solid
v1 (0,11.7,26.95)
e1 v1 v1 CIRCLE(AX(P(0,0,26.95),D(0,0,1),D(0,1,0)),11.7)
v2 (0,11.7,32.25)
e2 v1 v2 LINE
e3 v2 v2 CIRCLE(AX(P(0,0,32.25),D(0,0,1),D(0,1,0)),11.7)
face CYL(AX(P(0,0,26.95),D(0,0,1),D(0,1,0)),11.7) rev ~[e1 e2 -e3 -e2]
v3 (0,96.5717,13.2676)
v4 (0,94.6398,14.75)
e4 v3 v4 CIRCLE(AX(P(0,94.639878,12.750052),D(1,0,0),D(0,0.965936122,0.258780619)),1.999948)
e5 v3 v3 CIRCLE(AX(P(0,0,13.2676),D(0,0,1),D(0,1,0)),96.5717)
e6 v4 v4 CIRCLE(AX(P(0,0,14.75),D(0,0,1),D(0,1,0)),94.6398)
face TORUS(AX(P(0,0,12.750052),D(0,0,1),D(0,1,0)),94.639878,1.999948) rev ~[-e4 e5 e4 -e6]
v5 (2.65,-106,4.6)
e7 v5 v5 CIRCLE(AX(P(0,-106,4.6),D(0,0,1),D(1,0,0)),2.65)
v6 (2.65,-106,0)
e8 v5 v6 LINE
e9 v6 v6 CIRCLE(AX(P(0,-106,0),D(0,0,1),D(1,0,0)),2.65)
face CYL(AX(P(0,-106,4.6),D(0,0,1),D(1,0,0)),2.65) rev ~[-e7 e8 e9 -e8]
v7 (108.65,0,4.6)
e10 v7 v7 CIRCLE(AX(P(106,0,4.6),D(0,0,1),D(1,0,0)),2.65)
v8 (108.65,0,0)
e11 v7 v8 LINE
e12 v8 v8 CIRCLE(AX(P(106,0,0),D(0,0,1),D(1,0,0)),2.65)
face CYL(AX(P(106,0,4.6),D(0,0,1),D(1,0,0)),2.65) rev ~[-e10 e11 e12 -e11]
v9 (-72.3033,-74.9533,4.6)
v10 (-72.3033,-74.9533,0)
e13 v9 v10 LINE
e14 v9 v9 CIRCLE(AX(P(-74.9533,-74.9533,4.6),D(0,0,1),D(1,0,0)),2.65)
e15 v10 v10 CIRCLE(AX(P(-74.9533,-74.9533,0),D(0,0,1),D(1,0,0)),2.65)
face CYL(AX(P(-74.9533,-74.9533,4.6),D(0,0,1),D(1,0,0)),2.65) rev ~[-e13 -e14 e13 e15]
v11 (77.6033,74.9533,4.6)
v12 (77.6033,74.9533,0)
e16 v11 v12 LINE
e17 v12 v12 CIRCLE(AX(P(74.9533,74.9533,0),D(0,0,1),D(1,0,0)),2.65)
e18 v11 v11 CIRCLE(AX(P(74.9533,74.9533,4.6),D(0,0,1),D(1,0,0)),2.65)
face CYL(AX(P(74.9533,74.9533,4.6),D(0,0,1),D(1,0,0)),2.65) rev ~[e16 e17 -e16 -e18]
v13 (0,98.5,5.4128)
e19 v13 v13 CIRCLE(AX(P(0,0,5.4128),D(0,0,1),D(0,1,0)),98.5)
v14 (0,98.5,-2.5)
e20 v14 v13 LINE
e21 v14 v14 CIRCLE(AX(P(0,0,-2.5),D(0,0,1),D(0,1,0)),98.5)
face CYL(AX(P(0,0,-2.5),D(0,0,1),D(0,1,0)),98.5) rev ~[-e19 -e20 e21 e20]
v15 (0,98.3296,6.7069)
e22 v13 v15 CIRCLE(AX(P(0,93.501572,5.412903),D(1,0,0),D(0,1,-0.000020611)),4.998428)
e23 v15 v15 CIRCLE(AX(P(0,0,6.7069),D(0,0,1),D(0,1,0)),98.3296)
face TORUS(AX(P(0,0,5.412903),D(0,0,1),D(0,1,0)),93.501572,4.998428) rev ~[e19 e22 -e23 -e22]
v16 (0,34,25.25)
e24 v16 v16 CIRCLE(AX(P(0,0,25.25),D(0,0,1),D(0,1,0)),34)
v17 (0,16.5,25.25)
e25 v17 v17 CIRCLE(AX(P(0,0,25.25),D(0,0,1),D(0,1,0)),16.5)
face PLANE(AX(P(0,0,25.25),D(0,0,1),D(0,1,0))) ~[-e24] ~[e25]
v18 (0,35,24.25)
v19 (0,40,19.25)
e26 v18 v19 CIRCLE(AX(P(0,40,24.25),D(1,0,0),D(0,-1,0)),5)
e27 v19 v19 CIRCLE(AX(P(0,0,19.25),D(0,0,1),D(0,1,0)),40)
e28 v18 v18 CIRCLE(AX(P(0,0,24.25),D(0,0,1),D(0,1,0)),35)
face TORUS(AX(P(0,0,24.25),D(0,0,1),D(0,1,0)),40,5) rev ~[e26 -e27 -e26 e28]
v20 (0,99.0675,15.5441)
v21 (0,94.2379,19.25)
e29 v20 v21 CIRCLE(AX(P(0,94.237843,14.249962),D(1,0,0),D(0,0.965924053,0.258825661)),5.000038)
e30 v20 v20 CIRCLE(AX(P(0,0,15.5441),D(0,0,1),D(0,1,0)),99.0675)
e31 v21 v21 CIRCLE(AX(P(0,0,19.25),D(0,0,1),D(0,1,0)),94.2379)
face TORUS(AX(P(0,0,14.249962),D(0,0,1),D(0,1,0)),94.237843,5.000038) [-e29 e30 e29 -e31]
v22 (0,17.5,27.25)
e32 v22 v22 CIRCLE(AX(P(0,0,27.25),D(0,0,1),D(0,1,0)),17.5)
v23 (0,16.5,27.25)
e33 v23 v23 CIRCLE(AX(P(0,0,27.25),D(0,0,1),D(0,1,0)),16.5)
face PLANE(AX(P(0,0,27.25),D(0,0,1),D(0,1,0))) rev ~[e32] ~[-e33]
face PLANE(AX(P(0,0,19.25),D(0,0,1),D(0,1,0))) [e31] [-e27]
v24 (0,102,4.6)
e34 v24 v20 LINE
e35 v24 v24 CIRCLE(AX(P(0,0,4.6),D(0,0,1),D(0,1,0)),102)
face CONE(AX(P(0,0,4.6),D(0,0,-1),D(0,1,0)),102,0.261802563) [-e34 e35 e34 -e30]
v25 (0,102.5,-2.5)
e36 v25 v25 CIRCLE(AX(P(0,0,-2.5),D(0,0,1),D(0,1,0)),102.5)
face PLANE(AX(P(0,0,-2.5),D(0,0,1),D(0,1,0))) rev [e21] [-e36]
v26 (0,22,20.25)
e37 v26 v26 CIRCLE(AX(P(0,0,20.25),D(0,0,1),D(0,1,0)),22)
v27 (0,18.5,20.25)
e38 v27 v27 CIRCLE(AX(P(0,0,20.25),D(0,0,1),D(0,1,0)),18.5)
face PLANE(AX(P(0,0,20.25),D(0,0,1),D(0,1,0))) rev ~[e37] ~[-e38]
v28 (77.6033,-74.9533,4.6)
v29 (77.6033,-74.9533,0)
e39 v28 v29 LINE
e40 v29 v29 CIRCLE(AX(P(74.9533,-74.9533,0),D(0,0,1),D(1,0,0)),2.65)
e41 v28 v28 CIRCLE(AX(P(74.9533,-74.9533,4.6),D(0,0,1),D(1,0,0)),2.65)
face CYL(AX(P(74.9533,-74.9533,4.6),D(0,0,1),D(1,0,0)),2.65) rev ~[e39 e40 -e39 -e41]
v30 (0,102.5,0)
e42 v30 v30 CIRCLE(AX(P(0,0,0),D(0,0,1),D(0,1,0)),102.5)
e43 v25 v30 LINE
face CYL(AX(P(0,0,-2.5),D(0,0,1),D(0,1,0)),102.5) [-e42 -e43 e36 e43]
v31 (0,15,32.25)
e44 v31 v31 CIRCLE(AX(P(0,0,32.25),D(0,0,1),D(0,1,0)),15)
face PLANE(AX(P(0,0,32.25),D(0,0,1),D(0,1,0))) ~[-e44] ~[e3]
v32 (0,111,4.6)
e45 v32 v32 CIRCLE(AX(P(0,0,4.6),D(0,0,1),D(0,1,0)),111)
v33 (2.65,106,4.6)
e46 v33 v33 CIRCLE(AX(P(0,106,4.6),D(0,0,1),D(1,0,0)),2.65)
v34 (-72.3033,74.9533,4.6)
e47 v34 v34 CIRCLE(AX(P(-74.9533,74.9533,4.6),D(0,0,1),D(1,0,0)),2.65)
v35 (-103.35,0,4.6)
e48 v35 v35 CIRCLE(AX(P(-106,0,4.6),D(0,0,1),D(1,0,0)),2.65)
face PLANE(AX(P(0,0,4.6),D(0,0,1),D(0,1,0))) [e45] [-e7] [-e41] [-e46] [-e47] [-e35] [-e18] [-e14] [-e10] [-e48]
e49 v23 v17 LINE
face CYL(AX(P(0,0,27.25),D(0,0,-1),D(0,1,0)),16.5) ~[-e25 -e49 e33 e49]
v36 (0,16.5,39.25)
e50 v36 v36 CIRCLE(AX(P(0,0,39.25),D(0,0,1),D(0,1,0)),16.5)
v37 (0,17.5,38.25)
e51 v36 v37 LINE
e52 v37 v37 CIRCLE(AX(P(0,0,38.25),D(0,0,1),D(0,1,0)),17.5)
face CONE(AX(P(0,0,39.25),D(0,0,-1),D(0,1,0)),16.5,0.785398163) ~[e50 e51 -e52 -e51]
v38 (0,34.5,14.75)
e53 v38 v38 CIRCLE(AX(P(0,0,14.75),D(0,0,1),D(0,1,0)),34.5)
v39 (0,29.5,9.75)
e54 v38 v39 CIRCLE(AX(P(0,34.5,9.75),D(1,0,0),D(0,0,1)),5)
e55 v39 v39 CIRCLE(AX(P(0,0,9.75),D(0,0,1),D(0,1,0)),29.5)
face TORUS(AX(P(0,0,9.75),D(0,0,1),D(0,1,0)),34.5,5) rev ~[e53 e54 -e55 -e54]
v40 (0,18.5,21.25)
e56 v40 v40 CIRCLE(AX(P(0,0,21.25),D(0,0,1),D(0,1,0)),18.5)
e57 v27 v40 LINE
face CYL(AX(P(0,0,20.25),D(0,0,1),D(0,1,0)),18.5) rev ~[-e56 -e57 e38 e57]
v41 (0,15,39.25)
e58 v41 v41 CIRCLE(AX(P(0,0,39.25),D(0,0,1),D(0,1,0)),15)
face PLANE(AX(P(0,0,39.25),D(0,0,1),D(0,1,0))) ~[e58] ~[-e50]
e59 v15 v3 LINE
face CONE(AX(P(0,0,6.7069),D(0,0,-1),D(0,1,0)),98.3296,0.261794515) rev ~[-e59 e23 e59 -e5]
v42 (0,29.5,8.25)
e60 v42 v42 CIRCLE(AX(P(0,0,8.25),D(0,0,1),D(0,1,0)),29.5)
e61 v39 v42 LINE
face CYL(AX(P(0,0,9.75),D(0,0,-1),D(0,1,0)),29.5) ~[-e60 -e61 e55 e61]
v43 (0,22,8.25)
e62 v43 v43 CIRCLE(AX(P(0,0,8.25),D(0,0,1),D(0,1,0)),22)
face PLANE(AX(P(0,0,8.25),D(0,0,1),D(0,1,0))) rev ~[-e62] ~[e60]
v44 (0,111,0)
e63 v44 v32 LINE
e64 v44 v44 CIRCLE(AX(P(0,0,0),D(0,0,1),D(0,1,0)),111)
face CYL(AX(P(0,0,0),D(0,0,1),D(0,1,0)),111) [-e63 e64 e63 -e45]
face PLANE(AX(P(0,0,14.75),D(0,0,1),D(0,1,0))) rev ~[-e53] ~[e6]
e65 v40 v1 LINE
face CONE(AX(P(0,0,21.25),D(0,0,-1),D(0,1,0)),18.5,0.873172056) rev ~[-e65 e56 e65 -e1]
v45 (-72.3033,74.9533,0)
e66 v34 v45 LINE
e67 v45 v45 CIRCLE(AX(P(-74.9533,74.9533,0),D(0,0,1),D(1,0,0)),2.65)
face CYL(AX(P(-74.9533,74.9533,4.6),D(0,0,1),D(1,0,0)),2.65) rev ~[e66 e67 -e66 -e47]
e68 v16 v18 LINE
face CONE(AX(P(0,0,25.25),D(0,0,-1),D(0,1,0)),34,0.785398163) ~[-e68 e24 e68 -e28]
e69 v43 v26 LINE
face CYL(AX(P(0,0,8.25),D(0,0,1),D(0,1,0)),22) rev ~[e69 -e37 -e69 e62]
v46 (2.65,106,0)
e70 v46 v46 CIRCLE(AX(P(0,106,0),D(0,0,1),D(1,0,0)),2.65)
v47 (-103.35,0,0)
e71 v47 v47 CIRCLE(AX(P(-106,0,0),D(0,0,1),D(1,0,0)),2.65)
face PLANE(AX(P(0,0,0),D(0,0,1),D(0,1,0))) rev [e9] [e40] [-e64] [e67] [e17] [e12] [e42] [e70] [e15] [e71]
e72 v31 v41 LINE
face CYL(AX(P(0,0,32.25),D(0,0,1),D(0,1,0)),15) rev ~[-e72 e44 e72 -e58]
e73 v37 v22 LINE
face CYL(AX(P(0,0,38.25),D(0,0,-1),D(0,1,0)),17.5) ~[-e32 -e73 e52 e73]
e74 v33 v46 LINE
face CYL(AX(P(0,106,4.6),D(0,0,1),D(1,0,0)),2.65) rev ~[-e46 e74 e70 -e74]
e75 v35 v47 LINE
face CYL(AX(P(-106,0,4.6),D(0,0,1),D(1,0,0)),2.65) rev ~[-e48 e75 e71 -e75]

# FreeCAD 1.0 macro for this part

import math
import FreeCAD as App
import Part
import Sketcher
Q = App.Units.Quantity

doc = App.newDocument("Part")
body = doc.addObject("PartDesign::Body", "Body")

# Sketch on YZ plane
sketch1 = body.newObject("Sketcher::SketchObject", "Sketch")
sketch1.AttachmentSupport = (doc.getObject("YZ_Plane"), [""])
sketch1.MapMode = "FlatFace"
sketch1.addGeometry([
    Part.LineSegment(App.Vector(98.5, 5.4, 0), App.Vector(98.5, -2.5, 0)),  # 0
    Part.LineSegment(App.Vector(98.5, -2.5, 0), App.Vector(102.5, -2.5, 0)),  # 1
    Part.LineSegment(App.Vector(102.5, -2.5, 0), App.Vector(102.5, 0, 0)),  # 2
    Part.LineSegment(App.Vector(102.5, 0, 0), App.Vector(111, 0, 0)),  # 3
    Part.LineSegment(App.Vector(111, 0, 0), App.Vector(111, 4.6, 0)),  # 4
    Part.LineSegment(App.Vector(111, 4.6, 0), App.Vector(102, 4.6, 0)),  # 5
    Part.LineSegment(App.Vector(102, 4.6, 0), App.Vector(99.1, 15.5, 0)),  # 6
    Part.ArcOfCircle(Part.Circle(App.Vector(94.2, 14.2, 0), App.Vector(0, 0, 1), 5), math.radians(15), math.radians(90)),  # 7
    Part.LineSegment(App.Vector(94.2, 19.2, 0), App.Vector(40, 19.2, 0)),  # 8
    Part.ArcOfCircle(Part.Circle(App.Vector(40, 24.2, 0), App.Vector(0, 0, 1), 5), math.radians(180), math.radians(270)),  # 9
    Part.LineSegment(App.Vector(35, 24.2, 0), App.Vector(34, 25.2, 0)),  # 10
    Part.LineSegment(App.Vector(34, 25.2, 0), App.Vector(16.5, 25.2, 0)),  # 11
    Part.LineSegment(App.Vector(16.5, 25.2, 0), App.Vector(16.5, 27.2, 0)),  # 12
    Part.LineSegment(App.Vector(16.5, 27.2, 0), App.Vector(17.5, 27.2, 0)),  # 13
    Part.LineSegment(App.Vector(17.5, 27.2, 0), App.Vector(17.5, 38.2, 0)),  # 14
    Part.LineSegment(App.Vector(17.5, 38.2, 0), App.Vector(16.5, 39.2, 0)),  # 15
    Part.LineSegment(App.Vector(16.5, 39.2, 0), App.Vector(15, 39.2, 0)),  # 16
    Part.LineSegment(App.Vector(15, 39.2, 0), App.Vector(15, 32.2, 0)),  # 17
    Part.LineSegment(App.Vector(15, 32.2, 0), App.Vector(11.7, 32.2, 0)),  # 18
    Part.LineSegment(App.Vector(11.7, 32.2, 0), App.Vector(11.7, 26.9, 0)),  # 19
    Part.LineSegment(App.Vector(11.7, 26.9, 0), App.Vector(18.5, 21.2, 0)),  # 20
    Part.LineSegment(App.Vector(18.5, 21.2, 0), App.Vector(18.5, 20.2, 0)),  # 21
    Part.LineSegment(App.Vector(18.5, 20.2, 0), App.Vector(22, 20.2, 0)),  # 22
    Part.LineSegment(App.Vector(22, 20.2, 0), App.Vector(22, 8.2, 0)),  # 23
    Part.LineSegment(App.Vector(22, 8.2, 0), App.Vector(29.5, 8.2, 0)),  # 24
    Part.LineSegment(App.Vector(29.5, 8.2, 0), App.Vector(29.5, 9.8, 0)),  # 25
    Part.ArcOfCircle(Part.Circle(App.Vector(34.5, 9.8, 0), App.Vector(0, 0, 1), 5), math.radians(90), math.radians(180)),  # 26
    Part.LineSegment(App.Vector(34.5, 14.8, 0), App.Vector(94.6, 14.8, 0)),  # 27
    Part.ArcOfCircle(Part.Circle(App.Vector(94.6, 12.8, 0), App.Vector(0, 0, 1), 2), math.radians(15), math.radians(90)),  # 28
    Part.LineSegment(App.Vector(96.6, 13.3, 0), App.Vector(98.3, 6.7, 0)),  # 29
    Part.ArcOfCircle(Part.Circle(App.Vector(93.5, 5.4, 0), App.Vector(0, 0, 1), 5), math.radians(0), math.radians(15)),  # 30
], False)
sketch1.addConstraint([
    Sketcher.Constraint("Coincident", 0, 2, 1, 1),
    Sketcher.Constraint("Coincident", 1, 2, 2, 1),
    Sketcher.Constraint("Coincident", 2, 2, 3, 1),
    Sketcher.Constraint("Coincident", 3, 2, 4, 1),
    Sketcher.Constraint("Coincident", 4, 2, 5, 1),
    Sketcher.Constraint("Coincident", 5, 2, 6, 1),
    Sketcher.Constraint("Tangent", 6, 2, 7, 1),
    Sketcher.Constraint("Tangent", 7, 2, 8, 1),
    Sketcher.Constraint("Tangent", 8, 2, 9, 2),
    Sketcher.Constraint("Coincident", 9, 1, 10, 1),
    Sketcher.Constraint("Coincident", 10, 2, 11, 1),
    Sketcher.Constraint("Coincident", 11, 2, 12, 1),
    Sketcher.Constraint("Coincident", 12, 2, 13, 1),
    Sketcher.Constraint("Coincident", 13, 2, 14, 1),
    Sketcher.Constraint("Coincident", 14, 2, 15, 1),
    Sketcher.Constraint("Coincident", 15, 2, 16, 1),
    Sketcher.Constraint("Coincident", 16, 2, 17, 1),
    Sketcher.Constraint("Coincident", 17, 2, 18, 1),
    Sketcher.Constraint("Coincident", 18, 2, 19, 1),
    Sketcher.Constraint("Coincident", 19, 2, 20, 1),
    Sketcher.Constraint("Coincident", 20, 2, 21, 1),
    Sketcher.Constraint("Coincident", 21, 2, 22, 1),
    Sketcher.Constraint("Coincident", 22, 2, 23, 1),
    Sketcher.Constraint("Coincident", 23, 2, 24, 1),
    Sketcher.Constraint("Coincident", 24, 2, 25, 1),
    Sketcher.Constraint("Tangent", 25, 2, 26, 2),
    Sketcher.Constraint("Tangent", 26, 1, 27, 1),
    Sketcher.Constraint("Tangent", 27, 2, 28, 2),
    Sketcher.Constraint("Tangent", 28, 1, 29, 1),
    Sketcher.Constraint("Tangent", 29, 2, 30, 2),
    Sketcher.Constraint("Tangent", 30, 1, 0, 1),
    Sketcher.Constraint("Vertical", 0),
    Sketcher.Constraint("Horizontal", 1),
    Sketcher.Constraint("Vertical", 2),
    Sketcher.Constraint("Horizontal", 3),
    Sketcher.Constraint("Vertical", 4),
    Sketcher.Constraint("Horizontal", 5),
    Sketcher.Constraint("Horizontal", 8),
    Sketcher.Constraint("Horizontal", 11),
    Sketcher.Constraint("Vertical", 12),
    Sketcher.Constraint("Horizontal", 13),
    Sketcher.Constraint("Vertical", 14),
    Sketcher.Constraint("Horizontal", 16),
    Sketcher.Constraint("Vertical", 17),
    Sketcher.Constraint("Horizontal", 18),
    Sketcher.Constraint("Vertical", 19),
    Sketcher.Constraint("Vertical", 21),
    Sketcher.Constraint("Horizontal", 22),
    Sketcher.Constraint("Vertical", 23),
    Sketcher.Constraint("Horizontal", 24),
    Sketcher.Constraint("Vertical", 25),
    Sketcher.Constraint("Horizontal", 27),
    Sketcher.Constraint("Equal", 7, 9),
    Sketcher.Constraint("Equal", 9, 26),
    Sketcher.Constraint("PointOnObject", 2, 2, -1),
    Sketcher.Constraint("Parallel", 10, 15),
    Sketcher.Constraint("Parallel", 6, 29),
    Sketcher.Constraint("Vertical", 12, 2, 15, 2),
    Sketcher.Constraint("Equal", 13, 21),
    Sketcher.Constraint("Equal", 16, 25),
    Sketcher.Constraint("Equal", 10, 15),
    Sketcher.Constraint("Radius", 7, Q("5 mm")),
    Sketcher.Constraint("Radius", 28, Q("2 mm")),
    Sketcher.Constraint("DistanceX", 13, 1, 13, 2, Q("1 mm")),
    Sketcher.Constraint("DistanceY", 12, 1, 12, 2, Q("2 mm")),
    Sketcher.Constraint("DistanceY", 17, 2, 17, 1, Q("7 mm")),
    Sketcher.Constraint("DistanceY", 23, 2, 23, 1, Q("12 mm")),
    Sketcher.Constraint("Angle", 6, Q("105.0002 deg")),
    Sketcher.Constraint("DistanceX", 11, 2, 11, 1, Q("17.5 mm")),
    Sketcher.Constraint("DistanceY", 2, 1, 2, 2, Q("2.5 mm")),
    Sketcher.Constraint("DistanceY", 4, 1, 4, 2, Q("4.6 mm")),
    Sketcher.Constraint("DistanceX", -1, 1, 3, 2, Q("111 mm")),
    Sketcher.Constraint("DistanceX", -1, 1, 9, 1, Q("35 mm")),
    Sketcher.Constraint("DistanceX", -1, 1, 16, 2, Q("15 mm")),
    Sketcher.Constraint("DistanceX", -1, 1, 22, 2, Q("22 mm")),
    Sketcher.Constraint("DistanceY", 8, 2, 9, 1, Q("5 mm")),
    Sketcher.Constraint("DistanceY", 9, 1, 10, 2, Q("1 mm")),
    Sketcher.Constraint("DistanceY", 12, 2, 15, 2, Q("12 mm")),
    Sketcher.Constraint("DistanceX", 11, 2, 20, 2, Q("2 mm")),
    Sketcher.Constraint("DistanceY", 21, 2, 11, 2, Q("5 mm")),
    Sketcher.Constraint("DistanceX", -1, 1, 0, 2, Q("98.5 mm")),
    Sketcher.Constraint("DistanceX", -1, 1, 1, 2, Q("102.5 mm")),
    Sketcher.Constraint("DistanceX", -1, 1, 24, 2, Q("29.5 mm")),
    Sketcher.Constraint("DistanceX", 5, 2, 2, 2, Q("0.5 mm")),
    Sketcher.Constraint("DistanceX", 19, 2, 20, 2, Q("6.8 mm")),
    Sketcher.Constraint("DistanceY", 20, 2, 19, 2, Q("5.7 mm")),
    Sketcher.Constraint("DistanceY", -1, 1, 15, 2, Q("39.25 mm")),
    Sketcher.Constraint("Radius", 30, Q("4.9984 mm")),
    Sketcher.Constraint("DistanceX", 27, 1, 27, 2, Q("60.1398 mm")),
])
revolution = body.newObject("PartDesign::Revolution", "Revolution")
revolution.Profile = sketch1
revolution.ReferenceAxis = (sketch1, ["V_Axis"])
revolution.Angle = 360

# Sketch on XY plane
sketch2 = body.newObject("Sketcher::SketchObject", "Sketch001")
sketch2.AttachmentSupport = (doc.getObject("XY_Plane"), [""])
sketch2.MapMode = "FlatFace"
sketch2.AttachmentOffset = App.Placement(App.Vector(0, 0, 4.6), App.Rotation())
sketch2.addGeometry([
    Part.Circle(App.Vector(-106, 0, 0), App.Vector(0, 0, 1), 2.6),  # 0
    Part.Circle(App.Vector(-75, 75, 0), App.Vector(0, 0, 1), 2.6),  # 1
    Part.Circle(App.Vector(0, 106, 0), App.Vector(0, 0, 1), 2.6),  # 2
    Part.Circle(App.Vector(75, 75, 0), App.Vector(0, 0, 1), 2.6),  # 3
    Part.Circle(App.Vector(106, 0, 0), App.Vector(0, 0, 1), 2.6),  # 4
    Part.Circle(App.Vector(75, -75, 0), App.Vector(0, 0, 1), 2.6),  # 5
    Part.Circle(App.Vector(0, -106, 0), App.Vector(0, 0, 1), 2.6),  # 6
    Part.Circle(App.Vector(-75, -75, 0), App.Vector(0, 0, 1), 2.6),  # 7
], False)
sketch2.addConstraint([
    Sketcher.Constraint("Equal", 0, 1),
    Sketcher.Constraint("Equal", 1, 2),
    Sketcher.Constraint("Equal", 2, 3),
    Sketcher.Constraint("Equal", 3, 4),
    Sketcher.Constraint("Equal", 4, 5),
    Sketcher.Constraint("Equal", 5, 6),
    Sketcher.Constraint("Equal", 6, 7),
    Sketcher.Constraint("Symmetric", 0, 3, 4, 3, -1, 1),
    Sketcher.Constraint("Symmetric", 1, 3, 5, 3, -1, 1),
    Sketcher.Constraint("Symmetric", 2, 3, 6, 3, -1, 1),
    Sketcher.Constraint("Symmetric", 3, 3, 7, 3, -1, 1),
    Sketcher.Constraint("Symmetric", 1, 3, 3, 3, -2),
    Sketcher.Constraint("PointOnObject", 0, 3, -1),
    Sketcher.Constraint("PointOnObject", 2, 3, -2),
    Sketcher.Constraint("Diameter", 0, Q("5.3 mm")),
    Sketcher.Constraint("DistanceX", 0, 3, 4, 3, Q("212 mm")),
    Sketcher.Constraint("DistanceY", -1, 1, 2, 3, Q("106 mm")),
    Sketcher.Constraint("DistanceX", 1, 3, -1, 1, Q("74.9533 mm")),
    Sketcher.Constraint("DistanceY", -1, 1, 1, 3, Q("74.9533 mm")),
])
pocket1 = body.newObject("PartDesign::Pocket", "Pocket")
pocket1.Profile = sketch2
pocket1.Type = "ThroughAll"

doc.recompute()
